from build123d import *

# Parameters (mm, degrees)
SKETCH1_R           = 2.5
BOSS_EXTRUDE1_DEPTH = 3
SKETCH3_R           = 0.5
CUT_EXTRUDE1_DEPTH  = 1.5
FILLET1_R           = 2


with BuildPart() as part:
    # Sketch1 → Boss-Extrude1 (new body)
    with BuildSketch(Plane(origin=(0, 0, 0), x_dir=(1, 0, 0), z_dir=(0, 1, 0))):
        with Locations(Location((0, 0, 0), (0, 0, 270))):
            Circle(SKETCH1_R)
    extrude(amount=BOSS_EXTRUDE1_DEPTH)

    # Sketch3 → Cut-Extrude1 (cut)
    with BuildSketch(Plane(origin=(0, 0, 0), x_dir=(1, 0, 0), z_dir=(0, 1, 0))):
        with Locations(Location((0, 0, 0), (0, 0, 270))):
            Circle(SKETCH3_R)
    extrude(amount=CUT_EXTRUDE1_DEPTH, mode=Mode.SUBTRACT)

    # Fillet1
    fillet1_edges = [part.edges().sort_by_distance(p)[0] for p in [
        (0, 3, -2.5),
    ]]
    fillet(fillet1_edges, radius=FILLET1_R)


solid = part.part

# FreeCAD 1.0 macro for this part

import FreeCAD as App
import Part
import Sketcher
from FreeCAD import Vector


def edges_at(feature, points):
    """Names of the edges that pass closest to the given points."""
    edges = feature.Shape.Edges
    near = lambda p: min(range(len(edges)), key=lambda i: edges[i].distToShape(Part.Vertex(*p))[0])
    return sorted({f"Edge{near(p) + 1}" for p in points})

doc = App.newDocument("Part")
body = doc.addObject("PartDesign::Body", "Body")

sketch1 = body.newObject("Sketcher::SketchObject", "Sketch")
sketch1.AttachmentSupport = (doc.getObject("XZ_Plane"), [""])
sketch1.MapMode = "FlatFace"
sketch1.addGeometry(Part.Circle(Vector(0, 0, 0), Vector(0, 0, 1), 2.5), False)
sketch1.addConstraint([
    Sketcher.Constraint("Coincident", 0, 3, -1, 1),
    Sketcher.Constraint("Diameter", 0, 5.0),
])
pad1 = body.newObject("PartDesign::Pad", "Pad")
pad1.Profile = sketch1
pad1.Length = 3
pad1.Reversed = True

sketch2 = body.newObject("Sketcher::SketchObject", "Sketch001")
sketch2.AttachmentSupport = (doc.getObject("XZ_Plane"), [""])
sketch2.MapMode = "FlatFace"
sketch2.addGeometry(Part.Circle(Vector(0, 0, 0), Vector(0, 0, 1), 0.5), False)
sketch2.addConstraint([
    Sketcher.Constraint("Coincident", 0, 3, -1, 1),
    Sketcher.Constraint("Diameter", 0, 1.0),
])
pocket1 = body.newObject("PartDesign::Pocket", "Pocket")
pocket1.Profile = sketch2
pocket1.Length = 1.5
doc.recompute()

fillet = body.newObject("PartDesign::Fillet", "Fillet")
fillet.Base = (pocket1, edges_at(pocket1, [(0, 3, -2.5)]))
fillet.Radius = 2

doc.recompute()
